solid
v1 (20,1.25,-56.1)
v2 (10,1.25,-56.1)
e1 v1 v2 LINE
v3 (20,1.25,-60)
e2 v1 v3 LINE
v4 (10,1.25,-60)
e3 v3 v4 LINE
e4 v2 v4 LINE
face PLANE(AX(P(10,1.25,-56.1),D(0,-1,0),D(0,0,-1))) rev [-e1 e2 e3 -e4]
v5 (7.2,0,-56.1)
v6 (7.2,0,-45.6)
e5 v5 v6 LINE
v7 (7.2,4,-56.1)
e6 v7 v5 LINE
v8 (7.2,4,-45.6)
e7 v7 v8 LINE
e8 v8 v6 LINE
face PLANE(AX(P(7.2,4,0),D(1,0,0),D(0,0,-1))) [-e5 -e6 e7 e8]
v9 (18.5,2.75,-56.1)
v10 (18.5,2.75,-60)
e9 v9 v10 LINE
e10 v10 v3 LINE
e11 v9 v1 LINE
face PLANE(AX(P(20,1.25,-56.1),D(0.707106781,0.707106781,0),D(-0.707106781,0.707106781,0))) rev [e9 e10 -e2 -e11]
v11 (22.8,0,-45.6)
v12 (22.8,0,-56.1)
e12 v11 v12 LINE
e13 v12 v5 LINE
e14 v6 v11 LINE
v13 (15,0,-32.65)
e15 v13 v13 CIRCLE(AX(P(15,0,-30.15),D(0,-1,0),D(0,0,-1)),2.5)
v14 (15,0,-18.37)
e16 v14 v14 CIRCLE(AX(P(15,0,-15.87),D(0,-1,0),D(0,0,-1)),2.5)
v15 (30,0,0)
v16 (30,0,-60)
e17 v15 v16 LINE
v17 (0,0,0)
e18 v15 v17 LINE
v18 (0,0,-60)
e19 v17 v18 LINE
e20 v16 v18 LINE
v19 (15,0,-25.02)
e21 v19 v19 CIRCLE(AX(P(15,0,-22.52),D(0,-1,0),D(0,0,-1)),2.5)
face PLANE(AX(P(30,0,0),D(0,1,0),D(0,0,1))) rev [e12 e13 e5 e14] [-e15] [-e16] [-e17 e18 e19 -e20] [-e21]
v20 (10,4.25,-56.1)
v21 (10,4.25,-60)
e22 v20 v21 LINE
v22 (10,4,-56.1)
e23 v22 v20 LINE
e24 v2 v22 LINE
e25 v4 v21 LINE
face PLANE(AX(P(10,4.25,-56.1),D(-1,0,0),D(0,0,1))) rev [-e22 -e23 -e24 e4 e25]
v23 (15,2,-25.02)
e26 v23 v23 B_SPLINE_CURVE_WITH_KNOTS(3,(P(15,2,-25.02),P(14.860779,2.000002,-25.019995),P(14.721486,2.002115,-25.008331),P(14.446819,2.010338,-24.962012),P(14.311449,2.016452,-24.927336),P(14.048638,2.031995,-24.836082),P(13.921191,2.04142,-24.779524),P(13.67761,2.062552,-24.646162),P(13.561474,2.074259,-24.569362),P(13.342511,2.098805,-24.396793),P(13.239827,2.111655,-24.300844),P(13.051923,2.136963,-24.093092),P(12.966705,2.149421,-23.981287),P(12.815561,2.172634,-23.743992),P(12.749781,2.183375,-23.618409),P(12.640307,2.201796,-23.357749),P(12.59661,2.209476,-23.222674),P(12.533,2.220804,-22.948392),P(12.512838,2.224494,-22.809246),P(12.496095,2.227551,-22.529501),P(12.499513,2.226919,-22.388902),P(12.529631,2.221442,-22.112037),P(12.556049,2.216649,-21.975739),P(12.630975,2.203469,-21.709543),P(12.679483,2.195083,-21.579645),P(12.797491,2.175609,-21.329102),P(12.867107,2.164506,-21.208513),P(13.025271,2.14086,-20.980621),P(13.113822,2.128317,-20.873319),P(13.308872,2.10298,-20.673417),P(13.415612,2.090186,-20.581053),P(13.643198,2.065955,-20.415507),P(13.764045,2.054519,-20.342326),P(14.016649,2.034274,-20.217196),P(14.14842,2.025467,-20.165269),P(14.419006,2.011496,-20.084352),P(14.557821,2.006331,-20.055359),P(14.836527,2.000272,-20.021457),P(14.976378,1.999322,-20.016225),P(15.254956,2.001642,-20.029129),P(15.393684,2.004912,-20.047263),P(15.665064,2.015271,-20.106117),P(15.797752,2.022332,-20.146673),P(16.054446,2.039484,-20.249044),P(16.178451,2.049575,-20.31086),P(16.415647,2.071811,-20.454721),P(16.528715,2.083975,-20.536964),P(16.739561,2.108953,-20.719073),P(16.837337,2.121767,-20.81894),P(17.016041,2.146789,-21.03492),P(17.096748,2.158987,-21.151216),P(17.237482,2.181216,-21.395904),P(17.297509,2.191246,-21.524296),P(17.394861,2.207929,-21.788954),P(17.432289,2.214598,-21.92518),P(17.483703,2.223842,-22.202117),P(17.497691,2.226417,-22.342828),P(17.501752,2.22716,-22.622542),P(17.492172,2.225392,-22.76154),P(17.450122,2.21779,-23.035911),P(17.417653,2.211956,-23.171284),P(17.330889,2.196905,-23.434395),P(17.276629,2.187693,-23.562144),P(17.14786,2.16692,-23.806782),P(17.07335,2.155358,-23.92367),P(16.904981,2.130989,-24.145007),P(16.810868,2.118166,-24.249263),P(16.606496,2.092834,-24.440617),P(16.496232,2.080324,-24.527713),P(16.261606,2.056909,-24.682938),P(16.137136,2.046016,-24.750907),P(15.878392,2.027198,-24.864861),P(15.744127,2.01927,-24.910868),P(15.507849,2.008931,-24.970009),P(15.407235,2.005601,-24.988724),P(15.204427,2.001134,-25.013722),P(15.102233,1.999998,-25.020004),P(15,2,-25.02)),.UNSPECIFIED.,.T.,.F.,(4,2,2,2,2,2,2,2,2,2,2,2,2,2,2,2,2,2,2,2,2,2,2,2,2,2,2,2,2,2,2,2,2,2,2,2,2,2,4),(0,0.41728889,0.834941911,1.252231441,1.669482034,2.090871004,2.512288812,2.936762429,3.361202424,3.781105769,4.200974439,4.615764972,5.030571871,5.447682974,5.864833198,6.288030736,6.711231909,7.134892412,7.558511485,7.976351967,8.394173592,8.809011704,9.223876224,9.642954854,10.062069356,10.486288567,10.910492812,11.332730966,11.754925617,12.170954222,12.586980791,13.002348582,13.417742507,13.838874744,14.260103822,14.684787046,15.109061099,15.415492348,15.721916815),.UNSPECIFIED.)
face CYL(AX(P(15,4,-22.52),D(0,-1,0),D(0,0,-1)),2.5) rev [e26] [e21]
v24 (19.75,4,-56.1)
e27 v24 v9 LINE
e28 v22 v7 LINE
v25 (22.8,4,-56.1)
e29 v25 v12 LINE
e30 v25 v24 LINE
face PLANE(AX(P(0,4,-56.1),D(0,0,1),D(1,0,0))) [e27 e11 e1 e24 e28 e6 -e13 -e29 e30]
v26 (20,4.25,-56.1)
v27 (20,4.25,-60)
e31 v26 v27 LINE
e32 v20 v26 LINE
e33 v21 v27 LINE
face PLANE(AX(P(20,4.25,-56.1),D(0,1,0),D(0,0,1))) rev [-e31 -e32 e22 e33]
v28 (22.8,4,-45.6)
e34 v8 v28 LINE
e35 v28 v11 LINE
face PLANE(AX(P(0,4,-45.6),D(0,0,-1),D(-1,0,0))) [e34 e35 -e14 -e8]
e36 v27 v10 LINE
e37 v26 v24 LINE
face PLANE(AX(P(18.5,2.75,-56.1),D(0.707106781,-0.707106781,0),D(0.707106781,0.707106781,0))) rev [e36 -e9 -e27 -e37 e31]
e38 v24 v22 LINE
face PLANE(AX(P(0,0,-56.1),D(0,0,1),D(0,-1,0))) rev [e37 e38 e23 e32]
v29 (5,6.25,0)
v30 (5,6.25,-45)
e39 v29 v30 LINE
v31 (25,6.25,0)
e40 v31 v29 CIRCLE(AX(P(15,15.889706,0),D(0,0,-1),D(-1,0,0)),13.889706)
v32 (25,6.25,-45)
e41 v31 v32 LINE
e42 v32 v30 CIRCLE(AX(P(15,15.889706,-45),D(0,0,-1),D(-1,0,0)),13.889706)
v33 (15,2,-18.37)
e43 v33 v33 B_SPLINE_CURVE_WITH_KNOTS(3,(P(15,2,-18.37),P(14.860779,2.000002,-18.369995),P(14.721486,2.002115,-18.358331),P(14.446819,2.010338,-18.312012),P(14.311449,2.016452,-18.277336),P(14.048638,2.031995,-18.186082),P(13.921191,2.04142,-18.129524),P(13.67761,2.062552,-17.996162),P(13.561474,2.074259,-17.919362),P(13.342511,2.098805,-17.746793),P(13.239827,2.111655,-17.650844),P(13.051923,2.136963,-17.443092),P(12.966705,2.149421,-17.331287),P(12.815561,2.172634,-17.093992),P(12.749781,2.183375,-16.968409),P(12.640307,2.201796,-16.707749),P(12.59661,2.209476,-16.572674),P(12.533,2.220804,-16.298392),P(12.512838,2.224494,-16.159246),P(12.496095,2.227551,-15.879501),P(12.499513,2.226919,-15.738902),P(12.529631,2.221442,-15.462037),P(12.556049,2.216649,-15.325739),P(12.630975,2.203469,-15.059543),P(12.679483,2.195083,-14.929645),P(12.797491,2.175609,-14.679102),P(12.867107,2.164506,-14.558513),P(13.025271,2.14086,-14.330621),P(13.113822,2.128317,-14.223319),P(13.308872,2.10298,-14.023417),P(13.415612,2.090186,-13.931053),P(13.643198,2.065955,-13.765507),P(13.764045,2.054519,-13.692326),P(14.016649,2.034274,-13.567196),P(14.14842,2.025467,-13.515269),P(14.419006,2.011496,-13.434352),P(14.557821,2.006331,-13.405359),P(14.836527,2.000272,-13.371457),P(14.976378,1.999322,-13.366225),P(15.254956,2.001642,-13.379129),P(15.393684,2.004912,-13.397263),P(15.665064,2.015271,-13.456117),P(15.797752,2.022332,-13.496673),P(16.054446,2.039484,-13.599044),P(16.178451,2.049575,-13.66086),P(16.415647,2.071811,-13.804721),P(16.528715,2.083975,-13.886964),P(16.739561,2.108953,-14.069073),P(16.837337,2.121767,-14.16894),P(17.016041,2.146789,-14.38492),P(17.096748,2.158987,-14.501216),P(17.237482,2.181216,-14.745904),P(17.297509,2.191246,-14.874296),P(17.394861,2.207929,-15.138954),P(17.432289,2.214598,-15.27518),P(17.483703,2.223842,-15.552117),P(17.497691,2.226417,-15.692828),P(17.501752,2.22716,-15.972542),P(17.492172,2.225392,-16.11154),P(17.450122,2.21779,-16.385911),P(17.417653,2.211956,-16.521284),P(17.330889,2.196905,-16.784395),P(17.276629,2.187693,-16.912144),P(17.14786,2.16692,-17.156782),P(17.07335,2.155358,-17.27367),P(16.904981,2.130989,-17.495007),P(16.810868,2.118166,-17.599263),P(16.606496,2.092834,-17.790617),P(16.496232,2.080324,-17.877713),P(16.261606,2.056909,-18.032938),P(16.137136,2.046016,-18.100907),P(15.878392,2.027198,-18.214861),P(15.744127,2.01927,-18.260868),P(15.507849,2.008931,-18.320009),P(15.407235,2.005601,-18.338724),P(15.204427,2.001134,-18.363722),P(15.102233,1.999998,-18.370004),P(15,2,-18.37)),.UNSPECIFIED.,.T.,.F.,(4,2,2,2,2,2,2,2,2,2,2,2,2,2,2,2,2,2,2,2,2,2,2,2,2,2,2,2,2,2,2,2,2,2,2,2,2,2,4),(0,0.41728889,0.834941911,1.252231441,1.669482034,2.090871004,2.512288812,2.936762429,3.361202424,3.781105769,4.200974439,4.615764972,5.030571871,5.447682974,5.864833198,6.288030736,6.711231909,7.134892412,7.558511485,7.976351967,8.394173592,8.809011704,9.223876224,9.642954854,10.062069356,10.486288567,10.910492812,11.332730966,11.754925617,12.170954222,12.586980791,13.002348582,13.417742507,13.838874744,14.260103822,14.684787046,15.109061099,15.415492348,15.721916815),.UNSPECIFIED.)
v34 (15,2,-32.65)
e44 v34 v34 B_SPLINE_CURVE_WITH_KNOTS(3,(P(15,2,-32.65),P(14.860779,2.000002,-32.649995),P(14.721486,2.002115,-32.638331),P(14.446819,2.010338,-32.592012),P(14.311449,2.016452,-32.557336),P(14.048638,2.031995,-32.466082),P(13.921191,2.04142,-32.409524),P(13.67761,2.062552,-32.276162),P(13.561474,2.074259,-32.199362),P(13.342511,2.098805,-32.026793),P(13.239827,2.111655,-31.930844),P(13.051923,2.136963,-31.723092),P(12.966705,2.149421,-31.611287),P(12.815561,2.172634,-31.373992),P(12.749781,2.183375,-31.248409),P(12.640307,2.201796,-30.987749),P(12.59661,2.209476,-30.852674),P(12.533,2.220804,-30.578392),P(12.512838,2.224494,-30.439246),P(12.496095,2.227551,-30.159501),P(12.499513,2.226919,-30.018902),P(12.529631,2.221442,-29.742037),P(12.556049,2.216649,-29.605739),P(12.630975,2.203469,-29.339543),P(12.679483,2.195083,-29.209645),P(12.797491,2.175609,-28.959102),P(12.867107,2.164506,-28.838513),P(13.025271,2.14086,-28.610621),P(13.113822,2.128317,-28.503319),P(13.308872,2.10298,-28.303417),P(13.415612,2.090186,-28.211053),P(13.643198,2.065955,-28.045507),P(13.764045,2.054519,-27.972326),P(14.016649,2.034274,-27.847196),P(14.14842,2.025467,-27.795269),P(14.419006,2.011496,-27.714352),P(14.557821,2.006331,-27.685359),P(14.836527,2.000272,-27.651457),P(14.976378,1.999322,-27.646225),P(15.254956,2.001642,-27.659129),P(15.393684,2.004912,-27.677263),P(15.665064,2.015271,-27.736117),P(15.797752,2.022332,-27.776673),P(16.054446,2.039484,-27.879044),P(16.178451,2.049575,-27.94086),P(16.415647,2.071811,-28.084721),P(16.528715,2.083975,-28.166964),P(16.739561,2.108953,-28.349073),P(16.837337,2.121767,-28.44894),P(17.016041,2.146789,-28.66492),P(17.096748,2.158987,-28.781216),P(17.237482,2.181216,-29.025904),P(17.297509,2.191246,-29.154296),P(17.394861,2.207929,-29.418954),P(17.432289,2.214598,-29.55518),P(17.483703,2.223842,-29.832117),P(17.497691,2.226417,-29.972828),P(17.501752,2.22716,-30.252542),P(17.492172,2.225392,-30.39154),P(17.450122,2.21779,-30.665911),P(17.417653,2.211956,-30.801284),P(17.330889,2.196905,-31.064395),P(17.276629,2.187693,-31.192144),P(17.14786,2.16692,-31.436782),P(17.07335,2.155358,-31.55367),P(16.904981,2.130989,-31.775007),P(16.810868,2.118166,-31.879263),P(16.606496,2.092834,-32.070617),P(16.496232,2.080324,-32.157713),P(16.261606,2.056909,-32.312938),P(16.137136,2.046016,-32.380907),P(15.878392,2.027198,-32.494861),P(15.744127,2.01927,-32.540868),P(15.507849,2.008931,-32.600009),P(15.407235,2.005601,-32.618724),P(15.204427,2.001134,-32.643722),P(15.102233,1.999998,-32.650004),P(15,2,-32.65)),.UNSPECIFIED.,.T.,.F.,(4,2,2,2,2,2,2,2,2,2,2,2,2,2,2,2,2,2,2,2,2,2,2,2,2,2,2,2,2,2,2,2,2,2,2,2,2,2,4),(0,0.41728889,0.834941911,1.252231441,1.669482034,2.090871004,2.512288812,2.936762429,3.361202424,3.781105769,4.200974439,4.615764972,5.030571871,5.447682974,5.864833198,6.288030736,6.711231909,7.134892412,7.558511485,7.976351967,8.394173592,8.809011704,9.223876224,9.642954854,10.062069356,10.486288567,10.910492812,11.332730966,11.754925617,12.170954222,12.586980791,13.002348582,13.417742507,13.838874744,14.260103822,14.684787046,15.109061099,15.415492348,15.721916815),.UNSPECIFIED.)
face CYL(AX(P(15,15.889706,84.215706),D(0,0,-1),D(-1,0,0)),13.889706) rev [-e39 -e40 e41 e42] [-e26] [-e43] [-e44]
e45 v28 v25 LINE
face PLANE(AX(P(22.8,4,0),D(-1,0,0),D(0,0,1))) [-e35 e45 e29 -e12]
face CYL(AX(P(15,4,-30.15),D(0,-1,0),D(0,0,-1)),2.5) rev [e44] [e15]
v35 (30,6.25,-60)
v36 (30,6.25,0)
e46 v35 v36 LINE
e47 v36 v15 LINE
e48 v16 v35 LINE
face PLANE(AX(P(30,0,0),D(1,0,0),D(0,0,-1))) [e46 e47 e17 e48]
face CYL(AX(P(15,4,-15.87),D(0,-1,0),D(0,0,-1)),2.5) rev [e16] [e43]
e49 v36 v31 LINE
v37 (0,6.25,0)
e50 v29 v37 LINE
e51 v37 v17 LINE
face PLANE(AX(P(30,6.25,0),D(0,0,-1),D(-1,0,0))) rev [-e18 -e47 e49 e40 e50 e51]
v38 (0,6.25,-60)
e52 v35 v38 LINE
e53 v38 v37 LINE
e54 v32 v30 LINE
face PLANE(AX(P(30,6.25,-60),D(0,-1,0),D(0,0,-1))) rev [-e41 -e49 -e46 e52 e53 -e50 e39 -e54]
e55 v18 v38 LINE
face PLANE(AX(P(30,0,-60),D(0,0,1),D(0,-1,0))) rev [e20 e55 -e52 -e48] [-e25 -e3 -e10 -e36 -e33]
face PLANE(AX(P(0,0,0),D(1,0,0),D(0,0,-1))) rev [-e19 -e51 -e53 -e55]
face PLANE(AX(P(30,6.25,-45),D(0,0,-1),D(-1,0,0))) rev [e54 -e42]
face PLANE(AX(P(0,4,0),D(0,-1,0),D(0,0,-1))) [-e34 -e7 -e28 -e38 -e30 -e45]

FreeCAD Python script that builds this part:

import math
import FreeCAD as App
import Part
import Sketcher
Q = App.Units.Quantity


def add_polygon(sketch, points):
    """Adds a closed chain of lines whose ends are joined by coincident constraints."""
    first, n = sketch.GeometryCount, len(points)
    for a, b in zip(points, points[1:] + points[:1]):
        sketch.addGeometry(Part.LineSegment(App.Vector(*a, 0), App.Vector(*b, 0)), False)
    for i in range(n):
        sketch.addConstraint(Sketcher.Constraint("Coincident", first + i, 2, first + (i + 1) % n, 1))

doc = App.newDocument("Part")
body = doc.addObject("PartDesign::Body", "Body")

# Sketch on YZ plane
sketch1 = body.newObject("Sketcher::SketchObject", "Sketch")
sketch1.AttachmentSupport = (doc.getObject("YZ_Plane"), [""])
sketch1.MapMode = "FlatFace"
add_polygon(sketch1, [(6, 0), (0, 0), (0, -60), (6, -60)])  # lines 0-3
sketch1.addConstraint(Sketcher.Constraint("Horizontal", 0))
sketch1.addConstraint(Sketcher.Constraint("Vertical", 1))
sketch1.addConstraint(Sketcher.Constraint("Horizontal", 2))
sketch1.addConstraint(Sketcher.Constraint("Vertical", 3))
sketch1.addConstraint(Sketcher.Constraint("Coincident", 0, 2, -1, 1))
sketch1.addConstraint(Sketcher.Constraint("DistanceY", 1, 2, 1, 1, Q("60 mm")))
sketch1.addConstraint(Sketcher.Constraint("DistanceX", 0, 2, 0, 1, Q("6.25 mm")))
pad1 = body.newObject("PartDesign::Pad", "Pad")
pad1.Profile = sketch1
pad1.Length = 30

# Sketch on XY plane
sketch2 = body.newObject("Sketcher::SketchObject", "Sketch001")
sketch2.AttachmentSupport = (doc.getObject("XY_Plane"), [""])
sketch2.MapMode = "FlatFace"
sketch2.addGeometry(Part.LineSegment(App.Vector(25, 6, 0), App.Vector(5, 6, 0)), False)
sketch2.addGeometry(Part.ArcOfCircle(Part.Circle(App.Vector(15, 16, 0), App.Vector(0, 0, 1), 14), math.radians(-136), math.radians(-44)), False)
sketch2.addConstraint(Sketcher.Constraint("Coincident", 0, 1, 1, 2))
sketch2.addConstraint(Sketcher.Constraint("Coincident", 1, 1, 0, 2))
sketch2.addConstraint(Sketcher.Constraint("Horizontal", 0))
sketch2.addConstraint(Sketcher.Constraint("DistanceX", 0, 2, 0, 1, Q("20 mm")))
sketch2.addConstraint(Sketcher.Constraint("DistanceX", -1, 1, 1, 3, Q("15 mm")))
sketch2.addConstraint(Sketcher.Constraint("DistanceY", -1, 1, 0, 1, Q("6.25 mm")))
sketch2.addConstraint(Sketcher.Constraint("Radius", 1, Q("13.889706 mm")))
pocket1 = body.newObject("PartDesign::Pocket", "Pocket")
pocket1.Profile = sketch2
pocket1.Type = "TwoLengths"
pocket1.Length = 68.372565
pocket1.Length2 = 45
pocket1.Reversed = True

# Sketch on XZ plane
sketch3 = body.newObject("Sketcher::SketchObject", "Sketch002")
sketch3.AttachmentSupport = (doc.getObject("XZ_Plane"), [""])
sketch3.MapMode = "FlatFace"
sketch3.addGeometry(Part.Circle(App.Vector(15, -15.9, 0), App.Vector(0, 0, 1), 2.5), False)  # 0
sketch3.addGeometry(Part.Circle(App.Vector(15, -22.5, 0), App.Vector(0, 0, 1), 2.5), False)  # 1
sketch3.addGeometry(Part.Circle(App.Vector(15, -30.1, 0), App.Vector(0, 0, 1), 2.5), False)  # 2
add_polygon(sketch3, [(7.2, -45.6), (7.2, -56.1), (22.8, -56.1), (22.8, -45.6)])  # lines 3-6
sketch3.addConstraint(Sketcher.Constraint("Vertical", 3))
sketch3.addConstraint(Sketcher.Constraint("Horizontal", 4))
sketch3.addConstraint(Sketcher.Constraint("Vertical", 5))
sketch3.addConstraint(Sketcher.Constraint("Horizontal", 6))
sketch3.addConstraint(Sketcher.Constraint("Equal", 0, 1))
sketch3.addConstraint(Sketcher.Constraint("Equal", 1, 2))
sketch3.addConstraint(Sketcher.Constraint("Vertical", 0, 3, 1, 3))
sketch3.addConstraint(Sketcher.Constraint("Vertical", 1, 3, 2, 3))
sketch3.addConstraint(Sketcher.Constraint("Diameter", 0, Q("5 mm")))
sketch3.addConstraint(Sketcher.Constraint("DistanceX", 4, 1, 4, 2, Q("15.6 mm")))
sketch3.addConstraint(Sketcher.Constraint("DistanceY", 3, 2, 3, 1, Q("10.5 mm")))
sketch3.addConstraint(Sketcher.Constraint("DistanceX", -1, 1, 0, 3, Q("15 mm")))
sketch3.addConstraint(Sketcher.Constraint("DistanceX", -1, 1, 3, 2, Q("7.2 mm")))
sketch3.addConstraint(Sketcher.Constraint("DistanceY", 3, 2, -1, 1, Q("56.1 mm")))
sketch3.addConstraint(Sketcher.Constraint("DistanceY", 0, 3, -1, 1, Q("15.87 mm")))
sketch3.addConstraint(Sketcher.Constraint("DistanceY", 1, 3, -1, 1, Q("22.52 mm")))
sketch3.addConstraint(Sketcher.Constraint("DistanceY", 2, 3, -1, 1, Q("30.15 mm")))
pocket2 = body.newObject("PartDesign::Pocket", "Pocket001")
pocket2.Profile = sketch3
pocket2.Length = 4

# Sketch on XY plane
sketch4 = body.newObject("Sketcher::SketchObject", "Sketch003")
sketch4.AttachmentSupport = (doc.getObject("XY_Plane"), [""])
sketch4.MapMode = "FlatFace"
sketch4.AttachmentOffset = App.Placement(App.Vector(0, 0, -60), App.Rotation())
add_polygon(sketch4, [(20, 1.2), (10, 1.2), (10, 4.2), (20, 4.2), (18.5, 2.8)])  # lines 0-4
sketch4.addConstraint(Sketcher.Constraint("Horizontal", 0))
sketch4.addConstraint(Sketcher.Constraint("Vertical", 1))
sketch4.addConstraint(Sketcher.Constraint("Horizontal", 2))
sketch4.addConstraint(Sketcher.Constraint("Perpendicular", 3, 4))
sketch4.addConstraint(Sketcher.Constraint("Vertical", 2, 2, 4, 2))
sketch4.addConstraint(Sketcher.Constraint("Equal", 3, 4))
sketch4.addConstraint(Sketcher.Constraint("DistanceX", 0, 2, 0, 1, Q("10 mm")))
sketch4.addConstraint(Sketcher.Constraint("DistanceY", 1, 1, 1, 2, Q("3 mm")))
sketch4.addConstraint(Sketcher.Constraint("DistanceX", -1, 1, 0, 2, Q("10 mm")))
sketch4.addConstraint(Sketcher.Constraint("DistanceY", -1, 1, 0, 2, Q("1.25 mm")))
pocket3 = body.newObject("PartDesign::Pocket", "Pocket002")
pocket3.Profile = sketch4
pocket3.Length = 3.9
pocket3.Reversed = True

doc.recompute()
